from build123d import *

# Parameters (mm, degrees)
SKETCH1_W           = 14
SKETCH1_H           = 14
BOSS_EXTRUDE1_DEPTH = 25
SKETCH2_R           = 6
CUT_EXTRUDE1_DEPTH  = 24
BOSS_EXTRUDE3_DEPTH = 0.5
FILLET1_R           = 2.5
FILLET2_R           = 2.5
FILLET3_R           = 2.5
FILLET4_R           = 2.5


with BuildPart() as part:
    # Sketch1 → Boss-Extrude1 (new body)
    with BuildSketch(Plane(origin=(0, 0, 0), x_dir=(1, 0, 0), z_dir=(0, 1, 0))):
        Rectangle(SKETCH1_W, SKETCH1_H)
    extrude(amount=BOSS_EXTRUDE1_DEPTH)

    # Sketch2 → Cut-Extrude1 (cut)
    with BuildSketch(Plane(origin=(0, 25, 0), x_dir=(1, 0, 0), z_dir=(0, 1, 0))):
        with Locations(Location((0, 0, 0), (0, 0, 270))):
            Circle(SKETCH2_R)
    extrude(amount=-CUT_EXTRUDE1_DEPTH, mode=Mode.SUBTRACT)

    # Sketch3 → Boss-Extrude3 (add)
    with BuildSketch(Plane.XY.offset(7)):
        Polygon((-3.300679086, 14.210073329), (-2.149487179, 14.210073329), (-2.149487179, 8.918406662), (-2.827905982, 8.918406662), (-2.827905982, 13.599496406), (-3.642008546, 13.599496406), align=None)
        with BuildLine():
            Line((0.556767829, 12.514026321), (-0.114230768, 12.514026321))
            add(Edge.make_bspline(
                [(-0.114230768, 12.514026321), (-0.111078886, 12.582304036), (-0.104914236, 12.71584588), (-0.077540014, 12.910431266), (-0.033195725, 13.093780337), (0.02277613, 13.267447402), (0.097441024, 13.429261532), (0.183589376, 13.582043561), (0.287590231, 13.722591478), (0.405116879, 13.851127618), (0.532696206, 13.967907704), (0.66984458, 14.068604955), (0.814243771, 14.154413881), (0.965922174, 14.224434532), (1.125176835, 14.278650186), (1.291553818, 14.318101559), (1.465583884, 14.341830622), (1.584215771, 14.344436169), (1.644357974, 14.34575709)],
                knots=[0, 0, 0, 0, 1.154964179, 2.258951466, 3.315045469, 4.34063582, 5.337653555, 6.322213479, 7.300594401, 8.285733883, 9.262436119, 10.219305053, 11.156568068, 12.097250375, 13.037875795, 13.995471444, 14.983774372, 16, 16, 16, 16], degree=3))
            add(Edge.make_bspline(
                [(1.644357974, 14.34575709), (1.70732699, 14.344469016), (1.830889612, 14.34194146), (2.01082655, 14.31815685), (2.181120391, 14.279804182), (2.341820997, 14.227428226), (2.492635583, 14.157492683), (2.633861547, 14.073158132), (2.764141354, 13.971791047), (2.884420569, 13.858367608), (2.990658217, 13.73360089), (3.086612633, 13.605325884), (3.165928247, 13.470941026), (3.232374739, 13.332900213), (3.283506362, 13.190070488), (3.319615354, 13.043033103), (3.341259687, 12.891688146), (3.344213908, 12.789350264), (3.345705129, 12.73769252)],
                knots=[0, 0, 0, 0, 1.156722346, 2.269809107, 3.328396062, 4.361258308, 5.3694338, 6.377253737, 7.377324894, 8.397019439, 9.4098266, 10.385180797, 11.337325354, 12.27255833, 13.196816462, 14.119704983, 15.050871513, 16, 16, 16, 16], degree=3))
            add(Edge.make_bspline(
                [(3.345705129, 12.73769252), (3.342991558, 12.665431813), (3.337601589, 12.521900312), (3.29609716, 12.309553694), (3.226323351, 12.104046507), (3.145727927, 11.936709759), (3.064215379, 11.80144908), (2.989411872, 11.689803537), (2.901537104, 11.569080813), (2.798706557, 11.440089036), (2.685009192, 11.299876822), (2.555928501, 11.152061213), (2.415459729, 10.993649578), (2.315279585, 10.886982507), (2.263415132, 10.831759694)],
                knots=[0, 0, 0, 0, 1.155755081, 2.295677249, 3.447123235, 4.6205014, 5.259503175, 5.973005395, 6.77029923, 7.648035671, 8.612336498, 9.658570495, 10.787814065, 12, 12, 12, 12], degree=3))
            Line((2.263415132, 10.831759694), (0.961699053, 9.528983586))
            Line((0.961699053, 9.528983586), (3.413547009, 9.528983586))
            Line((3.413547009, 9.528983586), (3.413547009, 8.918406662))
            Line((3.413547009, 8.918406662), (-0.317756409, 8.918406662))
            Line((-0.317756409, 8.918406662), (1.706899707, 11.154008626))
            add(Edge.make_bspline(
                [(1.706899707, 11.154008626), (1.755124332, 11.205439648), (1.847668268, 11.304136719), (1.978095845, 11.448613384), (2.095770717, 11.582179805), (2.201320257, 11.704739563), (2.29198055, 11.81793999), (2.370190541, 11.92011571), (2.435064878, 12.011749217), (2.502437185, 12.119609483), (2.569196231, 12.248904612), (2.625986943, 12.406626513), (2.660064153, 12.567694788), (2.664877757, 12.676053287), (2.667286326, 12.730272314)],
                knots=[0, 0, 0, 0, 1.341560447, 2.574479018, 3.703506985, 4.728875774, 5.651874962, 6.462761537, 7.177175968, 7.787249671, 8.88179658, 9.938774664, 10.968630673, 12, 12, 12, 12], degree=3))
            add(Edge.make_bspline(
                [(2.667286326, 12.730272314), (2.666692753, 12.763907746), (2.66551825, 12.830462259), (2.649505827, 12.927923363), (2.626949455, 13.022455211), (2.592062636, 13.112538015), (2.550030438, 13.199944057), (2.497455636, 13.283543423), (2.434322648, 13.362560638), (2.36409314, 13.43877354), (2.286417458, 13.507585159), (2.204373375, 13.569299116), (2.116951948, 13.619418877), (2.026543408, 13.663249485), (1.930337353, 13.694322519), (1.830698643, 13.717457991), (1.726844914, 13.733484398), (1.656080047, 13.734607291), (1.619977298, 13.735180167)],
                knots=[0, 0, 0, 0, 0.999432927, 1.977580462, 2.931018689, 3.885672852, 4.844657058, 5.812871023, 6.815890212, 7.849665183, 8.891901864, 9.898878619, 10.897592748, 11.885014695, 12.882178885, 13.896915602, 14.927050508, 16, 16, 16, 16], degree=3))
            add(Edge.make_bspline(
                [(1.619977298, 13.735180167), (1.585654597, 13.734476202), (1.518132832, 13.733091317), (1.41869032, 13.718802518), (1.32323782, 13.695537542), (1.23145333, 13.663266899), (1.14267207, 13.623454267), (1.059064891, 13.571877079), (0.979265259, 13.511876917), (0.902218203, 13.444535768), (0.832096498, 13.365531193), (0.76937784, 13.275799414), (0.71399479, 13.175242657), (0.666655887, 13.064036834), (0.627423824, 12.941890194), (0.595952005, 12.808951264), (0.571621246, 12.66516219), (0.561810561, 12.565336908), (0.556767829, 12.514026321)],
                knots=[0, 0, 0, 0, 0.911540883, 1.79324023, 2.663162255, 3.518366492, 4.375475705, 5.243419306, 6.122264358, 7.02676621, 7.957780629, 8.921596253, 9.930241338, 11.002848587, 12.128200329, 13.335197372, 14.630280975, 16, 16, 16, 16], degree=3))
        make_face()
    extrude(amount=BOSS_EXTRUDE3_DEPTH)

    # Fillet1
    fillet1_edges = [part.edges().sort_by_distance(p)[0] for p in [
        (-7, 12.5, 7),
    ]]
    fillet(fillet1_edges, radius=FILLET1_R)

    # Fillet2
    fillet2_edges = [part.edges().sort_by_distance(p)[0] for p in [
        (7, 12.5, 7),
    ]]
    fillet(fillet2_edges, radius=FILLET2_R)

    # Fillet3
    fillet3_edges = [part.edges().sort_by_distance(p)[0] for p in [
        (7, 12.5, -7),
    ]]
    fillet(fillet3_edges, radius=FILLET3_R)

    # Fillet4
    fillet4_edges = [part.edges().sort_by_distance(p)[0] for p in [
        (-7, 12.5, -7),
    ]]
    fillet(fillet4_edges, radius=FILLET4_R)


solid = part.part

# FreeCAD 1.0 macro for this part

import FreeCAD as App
import Part
import Sketcher


def edges_at(feature, points):
    """Names of the edges that pass closest to the given points."""
    edges = feature.Shape.Edges
    near = lambda p: min(range(len(edges)), key=lambda i: edges[i].distToShape(Part.Vertex(*p))[0])
    return sorted({f"Edge{near(p) + 1}" for p in points})


def add_polygon(sketch, points):
    """Adds a closed chain of lines whose ends are joined by coincident constraints."""
    first, n = sketch.GeometryCount, len(points)
    for a, b in zip(points, points[1:] + points[:1]):
        sketch.addGeometry(Part.LineSegment(App.Vector(*a, 0), App.Vector(*b, 0)), False)
    for i in range(n):
        sketch.addConstraint(Sketcher.Constraint("Coincident", first + i, 2, first + (i + 1) % n, 1))

doc = App.newDocument("Part")
body = doc.addObject("PartDesign::Body", "Body")

# Sketch on XZ plane
sketch1 = doc.addObject("Sketcher::SketchObject", "Sketch")
body.addObject(sketch1)
sketch1.AttachmentSupport = (doc.XZ_Plane, [""])
sketch1.MapMode = "FlatFace"
add_polygon(sketch1, [(-7, -7), (-7, 7), (7, 7), (7, -7)])  # lines 0-3
sketch1.addConstraint(Sketcher.Constraint("Vertical", 0))
sketch1.addConstraint(Sketcher.Constraint("Horizontal", 1))
sketch1.addConstraint(Sketcher.Constraint("Vertical", 2))
sketch1.addConstraint(Sketcher.Constraint("Horizontal", 3))
sketch1.addConstraint(Sketcher.Constraint("Symmetric", 0, 2, 2, 2, -1, 1))
sketch1.addConstraint(Sketcher.Constraint("Equal", 3, 0))
sketch1.addConstraint(Sketcher.Constraint("DistanceX", 1, 1, 1, 2, 14.0))
pad1 = doc.addObject("PartDesign::Pad", "Pad")
body.addObject(pad1)
pad1.Profile = sketch1
pad1.Length = 25
pad1.Reversed = True

# Sketch on XZ plane
sketch2 = doc.addObject("Sketcher::SketchObject", "Sketch001")
body.addObject(sketch2)
sketch2.AttachmentSupport = (doc.XZ_Plane, [""])
sketch2.MapMode = "FlatFace"
sketch2.AttachmentOffset = App.Placement(App.Vector(0, 0, -25), App.Rotation())
sketch2.addGeometry(Part.Circle(App.Vector(0, 0, 0), App.Vector(0, 0, 1), 6), False)
sketch2.addConstraint(Sketcher.Constraint("Coincident", 0, 3, -1, 1))
sketch2.addConstraint(Sketcher.Constraint("Diameter", 0, 12.0))
pocket1 = doc.addObject("PartDesign::Pocket", "Pocket")
body.addObject(pocket1)
pocket1.Profile = sketch2
pocket1.Length = 24
pocket1.Reversed = True

# Sketch on XY plane
sketch3 = doc.addObject("Sketcher::SketchObject", "Sketch002")
body.addObject(sketch3)
sketch3.AttachmentSupport = (doc.XY_Plane, [""])
sketch3.MapMode = "FlatFace"
sketch3.AttachmentOffset = App.Placement(App.Vector(0, 0, 7), App.Rotation())
add_polygon(sketch3, [(-2.149487, 14.210073), (-3.300679, 14.210073), (-3.642009, 13.599496), (-2.827906, 13.599496), (-2.827906, 8.918407), (-2.149487, 8.918407)])  # lines 0-5
sketch3.addGeometry(Part.LineSegment(App.Vector(-0.114231, 12.514026, 0), App.Vector(0.556768, 12.514026, 0)), False)  # 6
sketch3.addGeometry(Part.BSplineCurve([App.Vector(1.619977, 13.73518, 0), App.Vector(1.585655, 13.734476, 0), App.Vector(1.518133, 13.733091, 0), App.Vector(1.41869, 13.718803, 0), App.Vector(1.323238, 13.695538, 0), App.Vector(1.231453, 13.663267, 0), App.Vector(1.142672, 13.623454, 0), App.Vector(1.059065, 13.571877, 0), App.Vector(0.979265, 13.511877, 0), App.Vector(0.902218, 13.444536, 0), App.Vector(0.832096, 13.365531, 0), App.Vector(0.769378, 13.275799, 0), App.Vector(0.713995, 13.175243, 0), App.Vector(0.666656, 13.064037, 0), App.Vector(0.627424, 12.94189, 0), App.Vector(0.595952, 12.808951, 0), App.Vector(0.571621, 12.665162, 0), App.Vector(0.561811, 12.565337, 0), App.Vector(0.556768, 12.514026, 0)], [4, 1, 1, 1, 1, 1, 1, 1, 1, 1, 1, 1, 1, 1, 1, 1, 4], [0, 0.911540883, 1.79324023, 2.663162255, 3.518366492, 4.375475705, 5.243419306, 6.122264358, 7.02676621, 7.957780629, 8.921596253, 9.930241338, 11.002848587, 12.128200329, 13.335197372, 14.630280975, 16], False, 3, [1, 1, 1, 1, 1, 1, 1, 1, 1, 1, 1, 1, 1, 1, 1, 1, 1, 1, 1], False), False)  # 7
sketch3.addGeometry(Part.BSplineCurve([App.Vector(2.667286, 12.730272, 0), App.Vector(2.666693, 12.763908, 0), App.Vector(2.665518, 12.830462, 0), App.Vector(2.649506, 12.927923, 0), App.Vector(2.626949, 13.022455, 0), App.Vector(2.592063, 13.112538, 0), App.Vector(2.55003, 13.199944, 0), App.Vector(2.497456, 13.283543, 0), App.Vector(2.434323, 13.362561, 0), App.Vector(2.364093, 13.438774, 0), App.Vector(2.286417, 13.507585, 0), App.Vector(2.204373, 13.569299, 0), App.Vector(2.116952, 13.619419, 0), App.Vector(2.026543, 13.663249, 0), App.Vector(1.930337, 13.694323, 0), App.Vector(1.830699, 13.717458, 0), App.Vector(1.726845, 13.733484, 0), App.Vector(1.65608, 13.734607, 0), App.Vector(1.619977, 13.73518, 0)], [4, 1, 1, 1, 1, 1, 1, 1, 1, 1, 1, 1, 1, 1, 1, 1, 4], [0, 0.999432927, 1.977580462, 2.931018689, 3.885672852, 4.844657058, 5.812871023, 6.815890212, 7.849665183, 8.891901864, 9.898878619, 10.897592748, 11.885014695, 12.882178885, 13.896915602, 14.927050508, 16], False, 3, [1, 1, 1, 1, 1, 1, 1, 1, 1, 1, 1, 1, 1, 1, 1, 1, 1, 1, 1], False), False)  # 8
sketch3.addGeometry(Part.BSplineCurve([App.Vector(1.7069, 11.154009, 0), App.Vector(1.755124, 11.20544, 0), App.Vector(1.847668, 11.304137, 0), App.Vector(1.978096, 11.448613, 0), App.Vector(2.095771, 11.58218, 0), App.Vector(2.20132, 11.70474, 0), App.Vector(2.291981, 11.81794, 0), App.Vector(2.370191, 11.920116, 0), App.Vector(2.435065, 12.011749, 0), App.Vector(2.502437, 12.119609, 0), App.Vector(2.569196, 12.248905, 0), App.Vector(2.625987, 12.406627, 0), App.Vector(2.660064, 12.567695, 0), App.Vector(2.664878, 12.676053, 0), App.Vector(2.667286, 12.730272, 0)], [4, 1, 1, 1, 1, 1, 1, 1, 1, 1, 1, 1, 4], [0, 1.341560447, 2.574479018, 3.703506985, 4.728875774, 5.651874962, 6.462761537, 7.177175968, 7.787249671, 8.88179658, 9.938774664, 10.968630673, 12], False, 3, [1, 1, 1, 1, 1, 1, 1, 1, 1, 1, 1, 1, 1, 1, 1], False), False)  # 9
sketch3.addGeometry(Part.LineSegment(App.Vector(1.7069, 11.154009, 0), App.Vector(-0.317756, 8.918407, 0)), False)  # 10
sketch3.addGeometry(Part.LineSegment(App.Vector(-0.317756, 8.918407, 0), App.Vector(3.413547, 8.918407, 0)), False)  # 11
sketch3.addGeometry(Part.LineSegment(App.Vector(3.413547, 8.918407, 0), App.Vector(3.413547, 9.528984, 0)), False)  # 12
sketch3.addGeometry(Part.LineSegment(App.Vector(3.413547, 9.528984, 0), App.Vector(0.961699, 9.528984, 0)), False)  # 13
sketch3.addGeometry(Part.LineSegment(App.Vector(0.961699, 9.528984, 0), App.Vector(2.263415, 10.83176, 0)), False)  # 14
sketch3.addGeometry(Part.BSplineCurve([App.Vector(3.345705, 12.737693, 0), App.Vector(3.342992, 12.665432, 0), App.Vector(3.337602, 12.5219, 0), App.Vector(3.296097, 12.309554, 0), App.Vector(3.226323, 12.104047, 0), App.Vector(3.145728, 11.93671, 0), App.Vector(3.064215, 11.801449, 0), App.Vector(2.989412, 11.689804, 0), App.Vector(2.901537, 11.569081, 0), App.Vector(2.798707, 11.440089, 0), App.Vector(2.685009, 11.299877, 0), App.Vector(2.555929, 11.152061, 0), App.Vector(2.41546, 10.99365, 0), App.Vector(2.31528, 10.886983, 0), App.Vector(2.263415, 10.83176, 0)], [4, 1, 1, 1, 1, 1, 1, 1, 1, 1, 1, 1, 4], [0, 1.155755081, 2.295677249, 3.447123235, 4.6205014, 5.259503175, 5.973005395, 6.77029923, 7.648035671, 8.612336498, 9.658570495, 10.787814065, 12], False, 3, [1, 1, 1, 1, 1, 1, 1, 1, 1, 1, 1, 1, 1, 1, 1], False), False)  # 15
sketch3.addGeometry(Part.BSplineCurve([App.Vector(1.644358, 14.345757, 0), App.Vector(1.707327, 14.344469, 0), App.Vector(1.83089, 14.341941, 0), App.Vector(2.010827, 14.318157, 0), App.Vector(2.18112, 14.279804, 0), App.Vector(2.341821, 14.227428, 0), App.Vector(2.492636, 14.157493, 0), App.Vector(2.633862, 14.073158, 0), App.Vector(2.764141, 13.971791, 0), App.Vector(2.884421, 13.858368, 0), App.Vector(2.990658, 13.733601, 0), App.Vector(3.086613, 13.605326, 0), App.Vector(3.165928, 13.470941, 0), App.Vector(3.232375, 13.3329, 0), App.Vector(3.283506, 13.19007, 0), App.Vector(3.319615, 13.043033, 0), App.Vector(3.34126, 12.891688, 0), App.Vector(3.344214, 12.78935, 0), App.Vector(3.345705, 12.737693, 0)], [4, 1, 1, 1, 1, 1, 1, 1, 1, 1, 1, 1, 1, 1, 1, 1, 4], [0, 1.156722346, 2.269809107, 3.328396062, 4.361258308, 5.3694338, 6.377253737, 7.377324894, 8.397019439, 9.4098266, 10.385180797, 11.337325354, 12.27255833, 13.196816462, 14.119704983, 15.050871513, 16], False, 3, [1, 1, 1, 1, 1, 1, 1, 1, 1, 1, 1, 1, 1, 1, 1, 1, 1, 1, 1], False), False)  # 16
sketch3.addGeometry(Part.BSplineCurve([App.Vector(-0.114231, 12.514026, 0), App.Vector(-0.111079, 12.582304, 0), App.Vector(-0.104914, 12.715846, 0), App.Vector(-0.07754, 12.910431, 0), App.Vector(-0.033196, 13.09378, 0), App.Vector(0.022776, 13.267447, 0), App.Vector(0.097441, 13.429262, 0), App.Vector(0.183589, 13.582044, 0), App.Vector(0.28759, 13.722591, 0), App.Vector(0.405117, 13.851128, 0), App.Vector(0.532696, 13.967908, 0), App.Vector(0.669845, 14.068605, 0), App.Vector(0.814244, 14.154414, 0), App.Vector(0.965922, 14.224435, 0), App.Vector(1.125177, 14.27865, 0), App.Vector(1.291554, 14.318102, 0), App.Vector(1.465584, 14.341831, 0), App.Vector(1.584216, 14.344436, 0), App.Vector(1.644358, 14.345757, 0)], [4, 1, 1, 1, 1, 1, 1, 1, 1, 1, 1, 1, 1, 1, 1, 1, 4], [0, 1.154964179, 2.258951466, 3.315045469, 4.34063582, 5.337653555, 6.322213479, 7.300594401, 8.285733883, 9.262436119, 10.219305053, 11.156568068, 12.097250375, 13.037875795, 13.995471444, 14.983774372, 16], False, 3, [1, 1, 1, 1, 1, 1, 1, 1, 1, 1, 1, 1, 1, 1, 1, 1, 1, 1, 1], False), False)  # 17
sketch3.addConstraint(Sketcher.Constraint("Block", 7))
sketch3.addConstraint(Sketcher.Constraint("Block", 8))
sketch3.addConstraint(Sketcher.Constraint("Block", 9))
sketch3.addConstraint(Sketcher.Constraint("Block", 15))
sketch3.addConstraint(Sketcher.Constraint("Block", 16))
sketch3.addConstraint(Sketcher.Constraint("Block", 17))
sketch3.addConstraint(Sketcher.Constraint("Coincident", 6, 2, 7, 2))
sketch3.addConstraint(Sketcher.Constraint("Coincident", 9, 1, 10, 1))
sketch3.addConstraint(Sketcher.Constraint("Coincident", 10, 2, 11, 1))
sketch3.addConstraint(Sketcher.Constraint("Coincident", 11, 2, 12, 1))
sketch3.addConstraint(Sketcher.Constraint("Coincident", 12, 2, 13, 1))
sketch3.addConstraint(Sketcher.Constraint("Coincident", 13, 2, 14, 1))
sketch3.addConstraint(Sketcher.Constraint("Coincident", 14, 2, 15, 2))
sketch3.addConstraint(Sketcher.Constraint("Coincident", 17, 1, 6, 1))
sketch3.addConstraint(Sketcher.Constraint("Horizontal", 0))
sketch3.addConstraint(Sketcher.Constraint("Horizontal", 2))
sketch3.addConstraint(Sketcher.Constraint("Vertical", 3))
sketch3.addConstraint(Sketcher.Constraint("Horizontal", 4))
sketch3.addConstraint(Sketcher.Constraint("Vertical", 5))
sketch3.addConstraint(Sketcher.Constraint("Horizontal", 11))
sketch3.addConstraint(Sketcher.Constraint("Vertical", 12))
sketch3.addConstraint(Sketcher.Constraint("Horizontal", 13))
sketch3.addConstraint(Sketcher.Constraint("Horizontal", 4, 2, 10, 2))
sketch3.addConstraint(Sketcher.Constraint("DistanceX", 0, 2, 0, 1, 1.151192))
sketch3.addConstraint(Sketcher.Constraint("DistanceX", 4, 1, 4, 2, 0.678419))
sketch3.addConstraint(Sketcher.Constraint("DistanceY", 3, 2, 3, 1, 4.68109))
sketch3.addConstraint(Sketcher.Constraint("DistanceX", -1, 1, 13, 2, 0.961699))
sketch3.addConstraint(Sketcher.Constraint("DistanceX", 2, 1, 2, 2, 0.814103))
sketch3.addConstraint(Sketcher.Constraint("DistanceX", 11, 1, 11, 2, 3.731303))
sketch3.addConstraint(Sketcher.Constraint("DistanceX", 13, 2, 13, 1, 2.451848))
sketch3.addConstraint(Sketcher.Constraint("DistanceY", 5, 1, 5, 2, 5.291667))
sketch3.addConstraint(Sketcher.Constraint("DistanceY", 12, 1, 12, 2, 0.610577))
sketch3.addConstraint(Sketcher.Constraint("DistanceX", 0, 2, -1, 1, 3.300679))
sketch3.addConstraint(Sketcher.Constraint("DistanceY", 6, 2, 2, 2, 1.08547))
pad2 = doc.addObject("PartDesign::Pad", "Pad001")
body.addObject(pad2)
pad2.Profile = sketch3
pad2.Length = 0.5
doc.recompute()

fillet = doc.addObject("PartDesign::Fillet", "Fillet")
body.addObject(fillet)
fillet.Base = (pad2, edges_at(pad2, [(-7, 12.5, 7)]))
fillet.Radius = 2.5
doc.recompute()

fillet2 = doc.addObject("PartDesign::Fillet", "Fillet001")
body.addObject(fillet2)
fillet2.Base = (fillet, edges_at(fillet, [(7, 12.5, 7)]))
fillet2.Radius = 2.5
doc.recompute()

fillet3 = doc.addObject("PartDesign::Fillet", "Fillet002")
body.addObject(fillet3)
fillet3.Base = (fillet2, edges_at(fillet2, [(7, 12.5, -7)]))
fillet3.Radius = 2.5
doc.recompute()

fillet4 = doc.addObject("PartDesign::Fillet", "Fillet003")
body.addObject(fillet4)
fillet4.Base = (fillet3, edges_at(fillet3, [(-7, 12.5, -7)]))
fillet4.Radius = 2.5

doc.recompute()
